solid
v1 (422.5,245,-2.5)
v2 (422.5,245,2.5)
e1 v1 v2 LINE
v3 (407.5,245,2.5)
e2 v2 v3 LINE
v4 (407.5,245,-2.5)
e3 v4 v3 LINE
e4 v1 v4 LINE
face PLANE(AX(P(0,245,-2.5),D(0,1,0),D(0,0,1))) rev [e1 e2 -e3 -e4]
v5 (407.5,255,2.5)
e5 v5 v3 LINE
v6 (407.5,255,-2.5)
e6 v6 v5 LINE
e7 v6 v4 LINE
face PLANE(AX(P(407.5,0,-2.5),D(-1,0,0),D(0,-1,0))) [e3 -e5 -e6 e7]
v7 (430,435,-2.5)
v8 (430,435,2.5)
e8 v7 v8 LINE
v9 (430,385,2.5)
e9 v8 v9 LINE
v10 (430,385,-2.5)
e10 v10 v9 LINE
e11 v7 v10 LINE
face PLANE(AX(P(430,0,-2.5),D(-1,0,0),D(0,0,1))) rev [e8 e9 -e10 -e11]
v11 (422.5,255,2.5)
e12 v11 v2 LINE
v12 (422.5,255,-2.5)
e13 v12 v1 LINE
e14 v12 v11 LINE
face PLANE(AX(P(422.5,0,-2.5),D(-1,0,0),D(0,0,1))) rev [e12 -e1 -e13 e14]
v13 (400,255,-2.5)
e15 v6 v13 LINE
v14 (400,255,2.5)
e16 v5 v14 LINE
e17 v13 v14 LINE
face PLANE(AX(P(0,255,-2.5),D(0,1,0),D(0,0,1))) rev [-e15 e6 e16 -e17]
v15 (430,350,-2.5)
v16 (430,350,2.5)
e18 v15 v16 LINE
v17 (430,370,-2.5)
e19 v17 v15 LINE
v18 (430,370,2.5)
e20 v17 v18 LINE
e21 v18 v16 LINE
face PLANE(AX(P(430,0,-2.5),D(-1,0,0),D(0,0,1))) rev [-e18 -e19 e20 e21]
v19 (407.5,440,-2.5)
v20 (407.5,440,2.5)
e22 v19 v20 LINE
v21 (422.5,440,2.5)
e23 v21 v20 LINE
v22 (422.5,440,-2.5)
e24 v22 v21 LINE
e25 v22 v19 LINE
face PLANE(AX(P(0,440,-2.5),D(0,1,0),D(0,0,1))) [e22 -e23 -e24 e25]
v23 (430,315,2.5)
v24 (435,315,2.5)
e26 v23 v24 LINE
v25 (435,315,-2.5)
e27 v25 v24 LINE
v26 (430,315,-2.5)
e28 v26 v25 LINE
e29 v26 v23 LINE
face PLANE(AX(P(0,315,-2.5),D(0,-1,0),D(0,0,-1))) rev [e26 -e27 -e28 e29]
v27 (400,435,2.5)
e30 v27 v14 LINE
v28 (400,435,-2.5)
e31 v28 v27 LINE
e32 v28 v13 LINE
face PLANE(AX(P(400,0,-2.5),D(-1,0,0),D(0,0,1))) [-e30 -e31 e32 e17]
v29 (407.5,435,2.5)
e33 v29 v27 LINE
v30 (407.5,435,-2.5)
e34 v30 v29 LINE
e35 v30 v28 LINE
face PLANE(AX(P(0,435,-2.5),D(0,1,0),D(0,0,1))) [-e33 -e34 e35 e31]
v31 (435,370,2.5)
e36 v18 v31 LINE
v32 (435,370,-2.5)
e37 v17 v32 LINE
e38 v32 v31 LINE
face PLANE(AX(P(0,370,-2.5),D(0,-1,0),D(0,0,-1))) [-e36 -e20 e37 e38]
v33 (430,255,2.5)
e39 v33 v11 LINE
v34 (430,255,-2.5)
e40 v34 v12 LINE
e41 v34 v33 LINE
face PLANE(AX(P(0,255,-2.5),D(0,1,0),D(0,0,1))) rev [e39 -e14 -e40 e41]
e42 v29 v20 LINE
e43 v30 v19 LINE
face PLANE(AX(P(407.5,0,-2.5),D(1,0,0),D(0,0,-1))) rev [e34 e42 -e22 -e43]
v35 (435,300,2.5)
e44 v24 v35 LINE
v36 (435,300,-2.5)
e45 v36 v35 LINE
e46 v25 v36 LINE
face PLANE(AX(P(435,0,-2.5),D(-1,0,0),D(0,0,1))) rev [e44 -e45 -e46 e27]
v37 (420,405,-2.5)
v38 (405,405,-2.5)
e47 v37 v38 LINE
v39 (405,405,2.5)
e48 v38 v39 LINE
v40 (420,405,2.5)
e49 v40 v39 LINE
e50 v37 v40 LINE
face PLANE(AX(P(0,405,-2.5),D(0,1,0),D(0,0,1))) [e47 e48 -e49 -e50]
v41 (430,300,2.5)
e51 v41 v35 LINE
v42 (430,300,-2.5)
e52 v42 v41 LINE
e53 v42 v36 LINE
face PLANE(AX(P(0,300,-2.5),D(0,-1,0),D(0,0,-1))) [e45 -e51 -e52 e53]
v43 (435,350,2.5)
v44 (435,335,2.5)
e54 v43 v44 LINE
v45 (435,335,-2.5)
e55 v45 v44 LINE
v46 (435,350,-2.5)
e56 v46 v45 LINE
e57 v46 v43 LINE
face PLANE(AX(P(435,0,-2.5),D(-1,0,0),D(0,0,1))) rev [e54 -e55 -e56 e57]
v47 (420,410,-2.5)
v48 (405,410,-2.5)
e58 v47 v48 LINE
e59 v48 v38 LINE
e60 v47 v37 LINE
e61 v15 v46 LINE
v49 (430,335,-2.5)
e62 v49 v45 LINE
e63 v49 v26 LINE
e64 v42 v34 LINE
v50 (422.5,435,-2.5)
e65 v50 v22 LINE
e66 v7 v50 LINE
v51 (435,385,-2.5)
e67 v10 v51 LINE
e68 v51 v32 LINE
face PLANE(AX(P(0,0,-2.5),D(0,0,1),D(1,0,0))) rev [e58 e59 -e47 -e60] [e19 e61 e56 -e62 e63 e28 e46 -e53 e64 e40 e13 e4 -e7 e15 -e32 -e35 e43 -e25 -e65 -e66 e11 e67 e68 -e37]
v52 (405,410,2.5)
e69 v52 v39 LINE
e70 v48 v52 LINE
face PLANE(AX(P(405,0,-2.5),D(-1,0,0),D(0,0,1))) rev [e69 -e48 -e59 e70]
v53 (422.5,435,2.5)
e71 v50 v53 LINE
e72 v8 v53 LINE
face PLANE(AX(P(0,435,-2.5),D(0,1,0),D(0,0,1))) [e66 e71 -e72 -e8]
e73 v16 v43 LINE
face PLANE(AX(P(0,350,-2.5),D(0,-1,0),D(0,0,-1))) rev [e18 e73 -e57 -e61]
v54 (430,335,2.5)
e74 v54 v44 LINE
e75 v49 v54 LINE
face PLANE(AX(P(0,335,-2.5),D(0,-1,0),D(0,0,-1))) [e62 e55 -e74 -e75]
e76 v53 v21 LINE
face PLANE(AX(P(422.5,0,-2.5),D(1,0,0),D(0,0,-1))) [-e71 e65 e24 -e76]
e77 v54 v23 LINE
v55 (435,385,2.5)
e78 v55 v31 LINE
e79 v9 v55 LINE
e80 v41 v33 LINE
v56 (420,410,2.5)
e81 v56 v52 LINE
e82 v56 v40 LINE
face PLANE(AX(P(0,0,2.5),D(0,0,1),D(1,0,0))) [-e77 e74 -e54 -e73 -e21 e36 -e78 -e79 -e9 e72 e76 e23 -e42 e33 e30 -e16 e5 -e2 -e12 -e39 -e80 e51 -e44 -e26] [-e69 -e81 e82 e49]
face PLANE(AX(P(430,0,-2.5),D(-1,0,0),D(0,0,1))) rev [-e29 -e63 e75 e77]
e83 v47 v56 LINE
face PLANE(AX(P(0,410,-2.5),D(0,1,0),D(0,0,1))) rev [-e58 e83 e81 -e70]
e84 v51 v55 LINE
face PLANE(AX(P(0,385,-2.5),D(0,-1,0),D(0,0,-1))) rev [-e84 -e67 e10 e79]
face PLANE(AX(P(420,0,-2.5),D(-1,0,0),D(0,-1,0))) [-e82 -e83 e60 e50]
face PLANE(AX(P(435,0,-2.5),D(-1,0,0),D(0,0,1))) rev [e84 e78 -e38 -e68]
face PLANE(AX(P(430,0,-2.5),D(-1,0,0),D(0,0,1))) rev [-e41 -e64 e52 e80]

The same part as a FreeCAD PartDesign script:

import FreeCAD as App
import Part
import Sketcher

V = App.Vector
Q = App.Units.Quantity

doc = App.newDocument("Part")
body = doc.addObject("PartDesign::Body", "Body")

sketch1 = doc.addObject("Sketcher::SketchObject", "Sketch")
body.addObject(sketch1)
sketch1.AttachmentSupport = (doc.XY_Plane, [""])
sketch1.MapMode = "FlatFace"
sketch1.addGeometry([
    Part.LineSegment(V(430, 255, 0), V(430, 300, 0)),
    Part.LineSegment(V(430, 300, 0), V(435, 300, 0)),
    Part.LineSegment(V(435, 300, 0), V(435, 315, 0)),
    Part.LineSegment(V(435, 315, 0), V(430, 315, 0)),
    Part.LineSegment(V(430, 315, 0), V(430, 335, 0)),
    Part.LineSegment(V(430, 335, 0), V(435, 335, 0)),
    Part.LineSegment(V(435, 335, 0), V(435, 350, 0)),
    Part.LineSegment(V(435, 350, 0), V(430, 350, 0)),
    Part.LineSegment(V(430, 350, 0), V(430, 370, 0)),
    Part.LineSegment(V(430, 370, 0), V(435, 370, 0)),
    Part.LineSegment(V(435, 370, 0), V(435, 385, 0)),
    Part.LineSegment(V(435, 385, 0), V(430, 385, 0)),
    Part.LineSegment(V(430, 385, 0), V(430, 435, 0)),
    Part.LineSegment(V(430, 435, 0), V(422, 435, 0)),
    Part.LineSegment(V(422, 435, 0), V(422, 440, 0)),
    Part.LineSegment(V(422, 440, 0), V(408, 440, 0)),
    Part.LineSegment(V(408, 440, 0), V(408, 435, 0)),
    Part.LineSegment(V(408, 435, 0), V(400, 435, 0)),
    Part.LineSegment(V(400, 435, 0), V(400, 255, 0)),
    Part.LineSegment(V(400, 255, 0), V(408, 255, 0)),
    Part.LineSegment(V(408, 255, 0), V(408, 245, 0)),
    Part.LineSegment(V(408, 245, 0), V(422, 245, 0)),
    Part.LineSegment(V(422, 245, 0), V(422, 255, 0)),
    Part.LineSegment(V(422, 255, 0), V(430, 255, 0)),
    Part.LineSegment(V(405, 405, 0), V(405, 410, 0)),
    Part.LineSegment(V(405, 410, 0), V(420, 410, 0)),
    Part.LineSegment(V(420, 410, 0), V(420, 405, 0)),
    Part.LineSegment(V(420, 405, 0), V(405, 405, 0)),
], False)
sketch1.addConstraint([
    Sketcher.Constraint("Coincident", 0, 2, 1, 1),
    Sketcher.Constraint("Coincident", 1, 2, 2, 1),
    Sketcher.Constraint("Coincident", 2, 2, 3, 1),
    Sketcher.Constraint("Coincident", 3, 2, 4, 1),
    Sketcher.Constraint("Coincident", 4, 2, 5, 1),
    Sketcher.Constraint("Coincident", 5, 2, 6, 1),
    Sketcher.Constraint("Coincident", 6, 2, 7, 1),
    Sketcher.Constraint("Coincident", 7, 2, 8, 1),
    Sketcher.Constraint("Coincident", 8, 2, 9, 1),
    Sketcher.Constraint("Coincident", 9, 2, 10, 1),
    Sketcher.Constraint("Coincident", 10, 2, 11, 1),
    Sketcher.Constraint("Coincident", 11, 2, 12, 1),
    Sketcher.Constraint("Coincident", 12, 2, 13, 1),
    Sketcher.Constraint("Coincident", 13, 2, 14, 1),
    Sketcher.Constraint("Coincident", 14, 2, 15, 1),
    Sketcher.Constraint("Coincident", 15, 2, 16, 1),
    Sketcher.Constraint("Coincident", 16, 2, 17, 1),
    Sketcher.Constraint("Coincident", 17, 2, 18, 1),
    Sketcher.Constraint("Coincident", 18, 2, 19, 1),
    Sketcher.Constraint("Coincident", 19, 2, 20, 1),
    Sketcher.Constraint("Coincident", 20, 2, 21, 1),
    Sketcher.Constraint("Coincident", 21, 2, 22, 1),
    Sketcher.Constraint("Coincident", 22, 2, 23, 1),
    Sketcher.Constraint("Coincident", 23, 2, 0, 1),
    Sketcher.Constraint("Coincident", 24, 2, 25, 1),
    Sketcher.Constraint("Coincident", 25, 2, 26, 1),
    Sketcher.Constraint("Coincident", 26, 2, 27, 1),
    Sketcher.Constraint("Coincident", 27, 2, 24, 1),
    Sketcher.Constraint("Vertical", 0),
    Sketcher.Constraint("Horizontal", 1),
    Sketcher.Constraint("Vertical", 2),
    Sketcher.Constraint("Horizontal", 3),
    Sketcher.Constraint("Vertical", 4),
    Sketcher.Constraint("Horizontal", 5),
    Sketcher.Constraint("Vertical", 6),
    Sketcher.Constraint("Horizontal", 7),
    Sketcher.Constraint("Vertical", 8),
    Sketcher.Constraint("Horizontal", 9),
    Sketcher.Constraint("Vertical", 10),
    Sketcher.Constraint("Horizontal", 11),
    Sketcher.Constraint("Vertical", 12),
    Sketcher.Constraint("Horizontal", 13),
    Sketcher.Constraint("Vertical", 14),
    Sketcher.Constraint("Horizontal", 15),
    Sketcher.Constraint("Vertical", 16),
    Sketcher.Constraint("Horizontal", 17),
    Sketcher.Constraint("Vertical", 18),
    Sketcher.Constraint("Horizontal", 19),
    Sketcher.Constraint("Vertical", 20),
    Sketcher.Constraint("Horizontal", 21),
    Sketcher.Constraint("Vertical", 22),
    Sketcher.Constraint("Horizontal", 23),
    Sketcher.Constraint("Vertical", 24),
    Sketcher.Constraint("Horizontal", 25),
    Sketcher.Constraint("Vertical", 26),
    Sketcher.Constraint("Horizontal", 27),
    Sketcher.Constraint("Horizontal", 13, 2, 16, 2),
    Sketcher.Constraint("Horizontal", 19, 2, 22, 2),
    Sketcher.Constraint("Vertical", 0, 2, 3, 2),
    Sketcher.Constraint("Vertical", 2, 2, 5, 2),
    Sketcher.Constraint("Vertical", 4, 2, 7, 2),
    Sketcher.Constraint("Vertical", 6, 2, 9, 2),
    Sketcher.Constraint("Vertical", 8, 2, 11, 2),
    Sketcher.Constraint("Vertical", 16, 2, 19, 2),
    Sketcher.Constraint("Vertical", 14, 2, 21, 2),
    Sketcher.Constraint("Equal", 13, 17),
    Sketcher.Constraint("Equal", 21, 25),
    Sketcher.Constraint("Equal", 27, 2),
    Sketcher.Constraint("Equal", 2, 6),
    Sketcher.Constraint("Equal", 4, 8),
    Sketcher.Constraint("Equal", 6, 10),
    Sketcher.Constraint("Equal", 11, 14),
    Sketcher.Constraint("Equal", 16, 24),
    Sketcher.Constraint("DistanceX", 1, 1, 1, 2, Q("5 mm")),
    Sketcher.Constraint("DistanceX", 15, 2, 15, 1, Q("15 mm")),
    Sketcher.Constraint("DistanceY", 0, 1, 0, 2, Q("45 mm")),
    Sketcher.Constraint("DistanceY", 4, 1, 4, 2, Q("20 mm")),
    Sketcher.Constraint("DistanceY", 12, 1, 12, 2, Q("50 mm")),
    Sketcher.Constraint("DistanceY", 20, 2, 20, 1, Q("10 mm")),
    Sketcher.Constraint("DistanceX", 13, 2, 13, 1, Q("7.5 mm")),
    Sketcher.Constraint("DistanceX", -1, 1, 0, 2, Q("430 mm")),
    Sketcher.Constraint("DistanceY", -1, 1, 0, 2, Q("300 mm")),
    Sketcher.Constraint("DistanceX", -1, 1, 24, 2, Q("405 mm")),
    Sketcher.Constraint("DistanceY", -1, 1, 24, 2, Q("410 mm")),
])
pad1 = doc.addObject("PartDesign::Pad", "Pad")
body.addObject(pad1)
pad1.Profile = sketch1
pad1.Length = 5
pad1.Midplane = True

doc.recompute()
